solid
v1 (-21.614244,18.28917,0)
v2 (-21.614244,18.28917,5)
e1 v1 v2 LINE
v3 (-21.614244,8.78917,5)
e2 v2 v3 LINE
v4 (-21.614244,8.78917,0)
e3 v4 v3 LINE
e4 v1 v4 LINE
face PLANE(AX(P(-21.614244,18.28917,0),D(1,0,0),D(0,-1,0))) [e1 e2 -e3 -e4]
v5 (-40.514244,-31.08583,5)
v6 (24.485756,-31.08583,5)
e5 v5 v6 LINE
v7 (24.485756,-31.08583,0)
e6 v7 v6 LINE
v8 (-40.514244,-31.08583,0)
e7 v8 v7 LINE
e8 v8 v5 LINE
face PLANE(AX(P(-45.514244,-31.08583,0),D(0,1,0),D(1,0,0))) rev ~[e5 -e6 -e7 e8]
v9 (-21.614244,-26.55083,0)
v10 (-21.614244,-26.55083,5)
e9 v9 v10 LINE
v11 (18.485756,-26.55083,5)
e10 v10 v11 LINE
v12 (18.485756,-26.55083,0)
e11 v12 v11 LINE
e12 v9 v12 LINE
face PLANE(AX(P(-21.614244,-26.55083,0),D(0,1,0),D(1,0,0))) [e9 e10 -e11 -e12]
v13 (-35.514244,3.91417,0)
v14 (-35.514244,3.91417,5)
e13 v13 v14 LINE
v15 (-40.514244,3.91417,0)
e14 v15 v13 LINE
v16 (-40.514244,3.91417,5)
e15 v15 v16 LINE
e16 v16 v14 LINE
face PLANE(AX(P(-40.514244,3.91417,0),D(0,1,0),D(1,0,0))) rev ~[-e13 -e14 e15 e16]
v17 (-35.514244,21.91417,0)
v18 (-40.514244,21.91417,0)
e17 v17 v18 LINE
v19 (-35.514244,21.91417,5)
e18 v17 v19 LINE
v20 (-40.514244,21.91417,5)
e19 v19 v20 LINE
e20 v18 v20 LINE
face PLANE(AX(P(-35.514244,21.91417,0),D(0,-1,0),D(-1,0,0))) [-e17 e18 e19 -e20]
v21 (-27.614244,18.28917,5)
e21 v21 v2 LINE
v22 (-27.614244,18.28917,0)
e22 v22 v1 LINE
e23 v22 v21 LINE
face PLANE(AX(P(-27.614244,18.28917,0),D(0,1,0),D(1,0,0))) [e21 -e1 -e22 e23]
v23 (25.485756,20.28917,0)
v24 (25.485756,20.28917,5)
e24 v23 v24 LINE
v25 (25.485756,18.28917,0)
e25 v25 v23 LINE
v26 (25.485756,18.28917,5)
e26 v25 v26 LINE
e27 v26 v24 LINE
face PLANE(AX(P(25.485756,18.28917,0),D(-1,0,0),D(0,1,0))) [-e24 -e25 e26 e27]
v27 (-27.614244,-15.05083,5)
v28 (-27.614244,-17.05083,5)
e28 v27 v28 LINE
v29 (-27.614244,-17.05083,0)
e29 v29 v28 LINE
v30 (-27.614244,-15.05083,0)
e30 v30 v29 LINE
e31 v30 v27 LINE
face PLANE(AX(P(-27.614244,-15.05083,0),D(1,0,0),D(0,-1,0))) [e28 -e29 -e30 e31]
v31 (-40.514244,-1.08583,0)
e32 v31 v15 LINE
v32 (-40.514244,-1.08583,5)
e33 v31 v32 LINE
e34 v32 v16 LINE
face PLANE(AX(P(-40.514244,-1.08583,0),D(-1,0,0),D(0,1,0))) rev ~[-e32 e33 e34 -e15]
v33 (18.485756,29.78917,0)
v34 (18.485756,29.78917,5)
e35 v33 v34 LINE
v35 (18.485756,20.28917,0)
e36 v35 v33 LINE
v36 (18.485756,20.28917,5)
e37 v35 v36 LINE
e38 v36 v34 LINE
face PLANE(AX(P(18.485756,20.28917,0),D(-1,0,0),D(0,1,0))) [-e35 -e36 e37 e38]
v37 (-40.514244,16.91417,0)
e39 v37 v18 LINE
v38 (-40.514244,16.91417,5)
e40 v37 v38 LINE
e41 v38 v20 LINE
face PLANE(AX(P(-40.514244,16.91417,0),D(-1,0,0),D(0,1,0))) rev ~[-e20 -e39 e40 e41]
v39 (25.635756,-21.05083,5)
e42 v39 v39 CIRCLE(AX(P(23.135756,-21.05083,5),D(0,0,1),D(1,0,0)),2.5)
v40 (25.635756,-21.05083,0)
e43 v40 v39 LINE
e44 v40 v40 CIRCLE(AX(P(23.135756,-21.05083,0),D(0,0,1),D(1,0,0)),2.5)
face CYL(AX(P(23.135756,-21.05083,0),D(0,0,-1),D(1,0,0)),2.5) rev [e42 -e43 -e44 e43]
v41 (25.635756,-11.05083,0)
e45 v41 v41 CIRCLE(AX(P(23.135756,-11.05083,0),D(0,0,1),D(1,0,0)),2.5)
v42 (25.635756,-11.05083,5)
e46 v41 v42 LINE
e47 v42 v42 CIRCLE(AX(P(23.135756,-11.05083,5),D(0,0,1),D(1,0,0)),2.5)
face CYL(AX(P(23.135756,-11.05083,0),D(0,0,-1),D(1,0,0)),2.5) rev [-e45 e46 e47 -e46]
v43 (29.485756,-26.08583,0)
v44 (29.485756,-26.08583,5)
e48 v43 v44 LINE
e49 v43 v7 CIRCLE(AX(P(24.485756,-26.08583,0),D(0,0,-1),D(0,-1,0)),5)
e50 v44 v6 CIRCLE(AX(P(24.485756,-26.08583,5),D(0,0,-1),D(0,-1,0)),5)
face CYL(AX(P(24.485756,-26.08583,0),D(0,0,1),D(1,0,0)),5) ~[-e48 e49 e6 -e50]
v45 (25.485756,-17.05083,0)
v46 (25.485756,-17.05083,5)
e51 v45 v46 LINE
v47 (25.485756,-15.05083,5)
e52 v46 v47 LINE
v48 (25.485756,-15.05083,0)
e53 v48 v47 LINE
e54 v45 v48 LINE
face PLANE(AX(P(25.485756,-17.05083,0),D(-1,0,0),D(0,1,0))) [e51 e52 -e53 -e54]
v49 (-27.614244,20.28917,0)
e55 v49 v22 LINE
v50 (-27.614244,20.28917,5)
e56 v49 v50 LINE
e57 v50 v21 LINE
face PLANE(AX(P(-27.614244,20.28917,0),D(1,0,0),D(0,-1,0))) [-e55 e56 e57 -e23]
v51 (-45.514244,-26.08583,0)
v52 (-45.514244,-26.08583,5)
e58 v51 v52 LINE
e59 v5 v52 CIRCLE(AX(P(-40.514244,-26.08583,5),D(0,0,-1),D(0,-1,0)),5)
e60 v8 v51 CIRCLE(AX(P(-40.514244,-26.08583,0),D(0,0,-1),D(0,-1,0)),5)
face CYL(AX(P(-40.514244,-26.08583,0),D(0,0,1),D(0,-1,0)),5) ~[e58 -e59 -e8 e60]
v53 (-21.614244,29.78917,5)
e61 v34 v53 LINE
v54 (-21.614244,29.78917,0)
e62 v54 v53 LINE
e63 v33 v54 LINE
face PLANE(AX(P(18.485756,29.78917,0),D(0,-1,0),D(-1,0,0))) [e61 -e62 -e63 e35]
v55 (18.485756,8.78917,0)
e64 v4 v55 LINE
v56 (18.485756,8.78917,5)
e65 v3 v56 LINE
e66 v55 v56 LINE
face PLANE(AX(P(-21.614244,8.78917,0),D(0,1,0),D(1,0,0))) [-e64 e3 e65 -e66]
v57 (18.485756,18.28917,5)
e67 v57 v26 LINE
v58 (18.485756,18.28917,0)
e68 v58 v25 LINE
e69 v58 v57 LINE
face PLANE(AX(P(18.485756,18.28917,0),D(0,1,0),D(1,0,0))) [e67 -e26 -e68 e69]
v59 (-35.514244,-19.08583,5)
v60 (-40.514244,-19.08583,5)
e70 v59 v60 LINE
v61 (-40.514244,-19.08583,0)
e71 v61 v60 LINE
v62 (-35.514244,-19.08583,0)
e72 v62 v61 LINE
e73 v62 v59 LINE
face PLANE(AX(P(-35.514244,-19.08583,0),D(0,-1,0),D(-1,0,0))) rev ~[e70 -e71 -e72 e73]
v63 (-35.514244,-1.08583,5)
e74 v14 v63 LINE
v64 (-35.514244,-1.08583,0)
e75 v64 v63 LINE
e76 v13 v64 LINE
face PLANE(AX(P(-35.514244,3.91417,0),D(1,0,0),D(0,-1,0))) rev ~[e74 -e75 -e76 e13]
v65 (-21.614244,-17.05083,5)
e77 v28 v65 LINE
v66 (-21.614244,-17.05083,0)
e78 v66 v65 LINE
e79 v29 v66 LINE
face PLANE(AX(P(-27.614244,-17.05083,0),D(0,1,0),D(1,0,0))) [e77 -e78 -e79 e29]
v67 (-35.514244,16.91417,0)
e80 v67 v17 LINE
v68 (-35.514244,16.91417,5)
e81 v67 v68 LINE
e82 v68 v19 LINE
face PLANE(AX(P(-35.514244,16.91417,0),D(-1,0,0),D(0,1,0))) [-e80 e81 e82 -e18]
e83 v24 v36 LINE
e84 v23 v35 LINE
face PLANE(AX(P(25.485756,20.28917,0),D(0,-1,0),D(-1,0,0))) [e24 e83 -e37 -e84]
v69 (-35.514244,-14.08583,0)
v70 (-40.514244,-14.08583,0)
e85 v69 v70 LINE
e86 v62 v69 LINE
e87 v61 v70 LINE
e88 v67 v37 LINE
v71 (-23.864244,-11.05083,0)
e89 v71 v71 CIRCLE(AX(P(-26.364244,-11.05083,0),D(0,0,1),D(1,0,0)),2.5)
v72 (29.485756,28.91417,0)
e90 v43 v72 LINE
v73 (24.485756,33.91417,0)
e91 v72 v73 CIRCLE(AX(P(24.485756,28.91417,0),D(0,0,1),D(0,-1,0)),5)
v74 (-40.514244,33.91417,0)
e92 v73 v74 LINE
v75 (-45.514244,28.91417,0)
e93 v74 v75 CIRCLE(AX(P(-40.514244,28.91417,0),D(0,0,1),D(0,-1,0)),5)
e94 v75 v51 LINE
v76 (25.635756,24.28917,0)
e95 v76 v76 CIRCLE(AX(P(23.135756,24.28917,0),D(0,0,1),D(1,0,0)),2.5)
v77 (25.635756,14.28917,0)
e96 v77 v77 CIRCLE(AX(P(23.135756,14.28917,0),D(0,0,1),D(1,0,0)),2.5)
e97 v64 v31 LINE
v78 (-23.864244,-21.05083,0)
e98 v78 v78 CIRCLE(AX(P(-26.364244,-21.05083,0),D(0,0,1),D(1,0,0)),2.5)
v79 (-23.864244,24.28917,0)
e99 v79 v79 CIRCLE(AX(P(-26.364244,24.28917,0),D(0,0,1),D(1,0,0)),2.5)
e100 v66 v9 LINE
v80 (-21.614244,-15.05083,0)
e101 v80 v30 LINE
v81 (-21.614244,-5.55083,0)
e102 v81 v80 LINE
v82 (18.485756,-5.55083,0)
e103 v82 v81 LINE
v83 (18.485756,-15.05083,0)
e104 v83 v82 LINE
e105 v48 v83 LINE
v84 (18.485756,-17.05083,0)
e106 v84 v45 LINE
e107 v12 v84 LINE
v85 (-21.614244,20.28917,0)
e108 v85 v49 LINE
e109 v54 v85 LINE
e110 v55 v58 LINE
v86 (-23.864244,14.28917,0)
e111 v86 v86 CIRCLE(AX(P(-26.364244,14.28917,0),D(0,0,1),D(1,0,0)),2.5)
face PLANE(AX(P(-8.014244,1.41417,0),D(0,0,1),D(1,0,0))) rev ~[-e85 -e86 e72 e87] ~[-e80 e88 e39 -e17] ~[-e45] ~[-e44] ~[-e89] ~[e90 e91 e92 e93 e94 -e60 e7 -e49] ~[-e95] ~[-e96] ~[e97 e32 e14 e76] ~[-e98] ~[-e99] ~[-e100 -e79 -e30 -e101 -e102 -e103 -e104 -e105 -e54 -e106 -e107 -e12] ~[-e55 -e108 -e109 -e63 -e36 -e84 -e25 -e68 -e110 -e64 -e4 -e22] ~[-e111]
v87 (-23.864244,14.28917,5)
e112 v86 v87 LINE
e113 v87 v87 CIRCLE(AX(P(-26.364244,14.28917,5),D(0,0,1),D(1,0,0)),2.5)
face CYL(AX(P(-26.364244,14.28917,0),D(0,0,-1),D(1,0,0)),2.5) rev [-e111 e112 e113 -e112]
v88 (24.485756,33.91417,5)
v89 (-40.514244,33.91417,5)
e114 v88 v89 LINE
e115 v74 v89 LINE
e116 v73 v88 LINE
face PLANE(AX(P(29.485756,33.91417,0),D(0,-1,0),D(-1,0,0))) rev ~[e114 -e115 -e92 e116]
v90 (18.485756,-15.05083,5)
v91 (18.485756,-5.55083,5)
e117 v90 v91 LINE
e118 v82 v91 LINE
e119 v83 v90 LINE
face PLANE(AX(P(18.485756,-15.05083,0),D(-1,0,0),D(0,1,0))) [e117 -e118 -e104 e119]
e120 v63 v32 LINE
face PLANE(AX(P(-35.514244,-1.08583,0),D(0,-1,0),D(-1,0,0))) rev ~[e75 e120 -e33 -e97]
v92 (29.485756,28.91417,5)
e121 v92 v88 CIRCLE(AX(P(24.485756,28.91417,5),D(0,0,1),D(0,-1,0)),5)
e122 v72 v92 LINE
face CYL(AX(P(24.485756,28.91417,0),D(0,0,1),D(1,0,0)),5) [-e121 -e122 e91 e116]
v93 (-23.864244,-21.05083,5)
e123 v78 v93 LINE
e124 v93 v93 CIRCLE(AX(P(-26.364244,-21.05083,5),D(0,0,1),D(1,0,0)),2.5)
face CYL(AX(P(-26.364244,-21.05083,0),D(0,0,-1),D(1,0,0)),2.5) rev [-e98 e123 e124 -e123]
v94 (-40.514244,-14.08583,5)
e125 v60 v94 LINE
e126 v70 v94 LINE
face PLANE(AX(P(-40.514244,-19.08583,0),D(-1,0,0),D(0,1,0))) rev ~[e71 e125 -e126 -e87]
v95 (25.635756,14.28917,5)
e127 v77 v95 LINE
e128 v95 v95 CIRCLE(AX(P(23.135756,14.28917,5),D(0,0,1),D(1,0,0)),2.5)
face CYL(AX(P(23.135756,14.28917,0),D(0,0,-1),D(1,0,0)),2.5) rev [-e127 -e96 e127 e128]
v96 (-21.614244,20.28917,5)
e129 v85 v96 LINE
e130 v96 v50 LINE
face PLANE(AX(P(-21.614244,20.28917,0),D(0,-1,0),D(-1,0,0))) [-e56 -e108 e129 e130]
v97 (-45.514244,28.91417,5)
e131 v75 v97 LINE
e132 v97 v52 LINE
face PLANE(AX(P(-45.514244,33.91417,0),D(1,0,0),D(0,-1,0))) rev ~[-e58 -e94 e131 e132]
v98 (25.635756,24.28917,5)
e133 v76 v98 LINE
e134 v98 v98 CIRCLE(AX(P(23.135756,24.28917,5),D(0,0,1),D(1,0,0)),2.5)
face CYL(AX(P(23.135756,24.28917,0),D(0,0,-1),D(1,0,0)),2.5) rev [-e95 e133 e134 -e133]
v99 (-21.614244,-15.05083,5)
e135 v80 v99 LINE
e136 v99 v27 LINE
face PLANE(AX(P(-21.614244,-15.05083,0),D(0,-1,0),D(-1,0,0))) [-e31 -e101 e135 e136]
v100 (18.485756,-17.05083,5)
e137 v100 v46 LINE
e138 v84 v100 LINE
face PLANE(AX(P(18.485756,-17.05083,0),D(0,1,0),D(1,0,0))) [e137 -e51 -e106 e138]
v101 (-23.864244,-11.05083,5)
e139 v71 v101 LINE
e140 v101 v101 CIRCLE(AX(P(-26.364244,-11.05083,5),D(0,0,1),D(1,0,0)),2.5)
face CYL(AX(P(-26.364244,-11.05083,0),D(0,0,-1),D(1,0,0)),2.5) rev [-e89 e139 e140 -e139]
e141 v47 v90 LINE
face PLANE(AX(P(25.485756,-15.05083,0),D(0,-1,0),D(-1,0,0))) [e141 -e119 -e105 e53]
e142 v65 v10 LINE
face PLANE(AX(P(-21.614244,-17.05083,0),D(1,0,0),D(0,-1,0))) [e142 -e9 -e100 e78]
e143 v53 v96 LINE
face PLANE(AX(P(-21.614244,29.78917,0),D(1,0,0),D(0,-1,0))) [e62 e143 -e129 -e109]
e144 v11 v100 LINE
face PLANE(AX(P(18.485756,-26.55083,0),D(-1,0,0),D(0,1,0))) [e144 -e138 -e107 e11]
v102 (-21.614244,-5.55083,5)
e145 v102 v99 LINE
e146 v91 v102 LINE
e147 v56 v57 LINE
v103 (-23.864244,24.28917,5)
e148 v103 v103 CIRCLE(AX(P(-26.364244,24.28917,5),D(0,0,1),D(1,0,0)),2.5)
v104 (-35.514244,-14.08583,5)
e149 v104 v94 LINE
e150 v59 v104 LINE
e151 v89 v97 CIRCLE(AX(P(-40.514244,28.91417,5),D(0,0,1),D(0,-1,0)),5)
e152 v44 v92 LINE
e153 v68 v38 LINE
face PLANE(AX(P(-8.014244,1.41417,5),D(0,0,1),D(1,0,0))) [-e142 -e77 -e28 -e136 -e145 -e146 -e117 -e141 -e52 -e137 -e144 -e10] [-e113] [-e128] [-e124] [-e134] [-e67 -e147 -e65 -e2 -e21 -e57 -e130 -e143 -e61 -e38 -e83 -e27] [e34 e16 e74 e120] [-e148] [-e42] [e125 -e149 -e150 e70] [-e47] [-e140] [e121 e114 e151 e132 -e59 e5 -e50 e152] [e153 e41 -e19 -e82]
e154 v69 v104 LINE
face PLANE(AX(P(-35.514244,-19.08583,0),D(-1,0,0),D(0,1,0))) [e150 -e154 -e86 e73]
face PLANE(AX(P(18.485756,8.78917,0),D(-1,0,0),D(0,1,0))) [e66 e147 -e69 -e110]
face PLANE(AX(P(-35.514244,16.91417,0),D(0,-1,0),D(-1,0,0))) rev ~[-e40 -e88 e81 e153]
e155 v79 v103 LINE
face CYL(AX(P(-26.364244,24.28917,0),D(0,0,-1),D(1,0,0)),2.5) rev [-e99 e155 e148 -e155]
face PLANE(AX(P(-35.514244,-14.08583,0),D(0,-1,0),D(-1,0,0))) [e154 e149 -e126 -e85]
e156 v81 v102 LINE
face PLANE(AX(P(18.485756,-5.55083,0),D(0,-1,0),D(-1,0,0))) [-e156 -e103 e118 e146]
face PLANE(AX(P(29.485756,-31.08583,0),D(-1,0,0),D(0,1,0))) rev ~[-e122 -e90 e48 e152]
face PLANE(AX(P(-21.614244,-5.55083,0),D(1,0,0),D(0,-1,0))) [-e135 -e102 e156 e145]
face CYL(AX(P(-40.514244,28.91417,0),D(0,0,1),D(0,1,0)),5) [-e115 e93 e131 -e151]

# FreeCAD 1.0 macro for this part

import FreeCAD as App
import Part
import Sketcher
from FreeCAD import Vector
Q = App.Units.Quantity


def edges_at(feature, points):
    """Names of the edges that pass closest to the given points."""
    edges = feature.Shape.Edges
    near = lambda p: min(range(len(edges)), key=lambda i: edges[i].distToShape(Part.Vertex(*p))[0])
    return sorted({f"Edge{near(p) + 1}" for p in points})


def add_polygon(sketch, points):
    """Adds a closed chain of lines whose ends are joined by coincident constraints."""
    first, n = sketch.GeometryCount, len(points)
    for a, b in zip(points, points[1:] + points[:1]):
        sketch.addGeometry(Part.LineSegment(App.Vector(*a, 0), App.Vector(*b, 0)), False)
    for i in range(n):
        sketch.addConstraint(Sketcher.Constraint("Coincident", first + i, 2, first + (i + 1) % n, 1))

doc = App.newDocument("Part")
body = doc.addObject("PartDesign::Body", "Body")

sketch1 = body.newObject("Sketcher::SketchObject", "Sketch")
sketch1.AttachmentSupport = (doc.getObject("XY_Plane"), [""])
sketch1.MapMode = "FlatFace"
add_polygon(sketch1, [(29.5, -31.1), (29.5, 33.9), (-45.5, 33.9), (-45.5, -31.1)])
sketch1.addGeometry(Part.Circle(Vector(-26.4, -21.1, 0), Vector(0, 0, 1), 2.5), False)
sketch1.addGeometry(Part.Circle(Vector(-26.4, -11.1, 0), Vector(0, 0, 1), 2.5), False)
add_polygon(sketch1, [(-21.6, -17.1), (-27.6, -17.1), (-27.6, -15.1), (-21.6, -15.1), (-21.6, -5.6), (18.5, -5.6), (18.5, -15.1), (25.5, -15.1), (25.5, -17.1), (18.5, -17.1), (18.5, -26.6), (-21.6, -26.6)])
sketch1.addGeometry(Part.Circle(Vector(23.1, -21.1, 0), Vector(0, 0, 1), 2.5), False)
sketch1.addGeometry(Part.Circle(Vector(23.1, -11.1, 0), Vector(0, 0, 1), 2.5), False)
sketch1.addGeometry(Part.Circle(Vector(-26.4, 14.3, 0), Vector(0, 0, 1), 2.5), False)
sketch1.addGeometry(Part.Circle(Vector(-26.4, 24.3, 0), Vector(0, 0, 1), 2.5), False)
sketch1.addGeometry(Part.Circle(Vector(23.1, 14.3, 0), Vector(0, 0, 1), 2.5), False)
add_polygon(sketch1, [(-21.6, 29.8), (18.5, 29.8), (18.5, 20.3), (25.5, 20.3), (25.5, 18.3), (18.5, 18.3), (18.5, 8.8), (-21.6, 8.8), (-21.6, 18.3), (-27.6, 18.3), (-27.6, 20.3), (-21.6, 20.3)])
sketch1.addGeometry(Part.Circle(Vector(23.1, 24.3, 0), Vector(0, 0, 1), 2.5), False)
sketch1.addConstraint([
    Sketcher.Constraint("Vertical", 0),
    Sketcher.Constraint("Horizontal", 1),
    Sketcher.Constraint("Vertical", 2),
    Sketcher.Constraint("Horizontal", 3),
    Sketcher.Constraint("Horizontal", 6),
    Sketcher.Constraint("Vertical", 7),
    Sketcher.Constraint("Horizontal", 8),
    Sketcher.Constraint("Vertical", 9),
    Sketcher.Constraint("Horizontal", 10),
    Sketcher.Constraint("Vertical", 11),
    Sketcher.Constraint("Horizontal", 12),
    Sketcher.Constraint("Vertical", 13),
    Sketcher.Constraint("Horizontal", 14),
    Sketcher.Constraint("Vertical", 15),
    Sketcher.Constraint("Horizontal", 16),
    Sketcher.Constraint("Vertical", 17),
    Sketcher.Constraint("Horizontal", 23),
    Sketcher.Constraint("Vertical", 24),
    Sketcher.Constraint("Horizontal", 25),
    Sketcher.Constraint("Vertical", 26),
    Sketcher.Constraint("Horizontal", 27),
    Sketcher.Constraint("Vertical", 28),
    Sketcher.Constraint("Horizontal", 29),
    Sketcher.Constraint("Vertical", 30),
    Sketcher.Constraint("Horizontal", 31),
    Sketcher.Constraint("Vertical", 32),
    Sketcher.Constraint("Horizontal", 33),
    Sketcher.Constraint("Vertical", 34),
    Sketcher.Constraint("Equal", 4, 5),
    Sketcher.Constraint("Equal", 5, 18),
    Sketcher.Constraint("Equal", 18, 19),
    Sketcher.Constraint("Equal", 19, 20),
    Sketcher.Constraint("Equal", 20, 21),
    Sketcher.Constraint("Equal", 21, 22),
    Sketcher.Constraint("Equal", 22, 35),
    Sketcher.Constraint("Horizontal", 4, 3, 18, 3),
    Sketcher.Constraint("Horizontal", 5, 3, 19, 3),
    Sketcher.Constraint("Horizontal", 20, 3, 22, 3),
    Sketcher.Constraint("Horizontal", 21, 3, 35, 3),
    Sketcher.Constraint("Horizontal", 8, 2, 11, 2),
    Sketcher.Constraint("Horizontal", 6, 2, 13, 2),
    Sketcher.Constraint("Horizontal", 27, 2, 30, 2),
    Sketcher.Constraint("Horizontal", 25, 2, 32, 2),
    Sketcher.Constraint("Vertical", 4, 3, 5, 3),
    Sketcher.Constraint("Vertical", 18, 3, 19, 3),
    Sketcher.Constraint("Vertical", 5, 3, 20, 3),
    Sketcher.Constraint("Vertical", 20, 3, 21, 3),
    Sketcher.Constraint("Vertical", 19, 3, 22, 3),
    Sketcher.Constraint("Vertical", 22, 3, 35, 3),
    Sketcher.Constraint("Vertical", 11, 2, 14, 2),
    Sketcher.Constraint("Vertical", 9, 2, 16, 2),
    Sketcher.Constraint("Vertical", 15, 2, 23, 2),
    Sketcher.Constraint("Vertical", 13, 2, 25, 2),
    Sketcher.Constraint("Vertical", 24, 2, 27, 2),
    Sketcher.Constraint("Vertical", 17, 2, 29, 2),
    Sketcher.Constraint("Vertical", 7, 2, 31, 2),
    Sketcher.Constraint("Vertical", 30, 2, 33, 2),
    Sketcher.Constraint("Equal", 11, 15),
    Sketcher.Constraint("Equal", 17, 24),
    Sketcher.Constraint("Equal", 13, 26),
    Sketcher.Constraint("Equal", 24, 28),
    Sketcher.Constraint("Diameter", 4, Q("5 mm")),
    Sketcher.Constraint("DistanceX", 1, 2, 1, 1, Q("75 mm")),
    Sketcher.Constraint("DistanceX", 6, 2, 6, 1, Q("6 mm")),
    Sketcher.Constraint("DistanceX", 12, 1, 12, 2, Q("7 mm")),
    Sketcher.Constraint("DistanceY", 0, 1, 0, 2, Q("65 mm")),
    Sketcher.Constraint("DistanceY", 7, 1, 7, 2, Q("2 mm")),
    Sketcher.Constraint("DistanceX", 10, 1, 10, 2, Q("40.1 mm")),
    Sketcher.Constraint("DistanceY", 9, 1, 9, 2, Q("9.5 mm")),
    Sketcher.Constraint("DistanceY", 4, 3, 5, 3, Q("10 mm")),
    Sketcher.Constraint("DistanceY", 20, 3, 21, 3, Q("10 mm")),
    Sketcher.Constraint("DistanceY", 4, 3, 6, 2, Q("4 mm")),
    Sketcher.Constraint("DistanceX", 10, 2, 3, 2, Q("11 mm")),
    Sketcher.Constraint("DistanceY", 24, 2, 35, 3, Q("4 mm")),
    Sketcher.Constraint("DistanceX", 4, 3, 18, 3, Q("49.5 mm")),
    Sketcher.Constraint("DistanceY", 5, 3, 20, 3, Q("25.34 mm")),
    Sketcher.Constraint("DistanceX", 35, 3, 0, 2, Q("6.35 mm")),
    Sketcher.Constraint("DistanceY", 35, 3, 0, 2, Q("9.625 mm")),
    Sketcher.Constraint("DistanceY", 4, 3, -1, 1, Q("21.05083 mm")),
    Sketcher.Constraint("DistanceX", 4, 3, -1, 1, Q("26.364244 mm")),
])
pad1 = body.newObject("PartDesign::Pad", "Pad")
pad1.Profile = sketch1
pad1.Length = 5

sketch2 = body.newObject("Sketcher::SketchObject", "Sketch001")
sketch2.AttachmentSupport = (doc.getObject("XY_Plane"), [""])
sketch2.MapMode = "FlatFace"
add_polygon(sketch2, [(-41, -1), (-41, 4), (-36, 4), (-36, -1)])
add_polygon(sketch2, [(-36, 22), (-36, 17), (-41, 17), (-41, 22)])
add_polygon(sketch2, [(-36, -14), (-36, -19), (-41, -19), (-41, -14)])
sketch2.addConstraint([
    Sketcher.Constraint("Vertical", 0),
    Sketcher.Constraint("Horizontal", 1),
    Sketcher.Constraint("Vertical", 2),
    Sketcher.Constraint("Horizontal", 3),
    Sketcher.Constraint("Vertical", 4),
    Sketcher.Constraint("Horizontal", 5),
    Sketcher.Constraint("Vertical", 6),
    Sketcher.Constraint("Horizontal", 7),
    Sketcher.Constraint("Vertical", 8),
    Sketcher.Constraint("Horizontal", 9),
    Sketcher.Constraint("Vertical", 10),
    Sketcher.Constraint("Horizontal", 11),
    Sketcher.Constraint("Vertical", 2, 2, 4, 2),
    Sketcher.Constraint("Vertical", 3, 2, 5, 2),
    Sketcher.Constraint("Vertical", 7, 2, 8, 2),
    Sketcher.Constraint("Vertical", 6, 2, 9, 2),
    Sketcher.Constraint("Equal", 11, 0),
    Sketcher.Constraint("Equal", 2, 4),
    Sketcher.Constraint("Equal", 6, 8),
    Sketcher.Constraint("DistanceX", 1, 1, 1, 2, Q("5 mm")),
    Sketcher.Constraint("DistanceY", 1, 2, 4, 2, Q("13 mm")),
    Sketcher.Constraint("DistanceY", 8, 2, 2, 2, Q("18 mm")),
    Sketcher.Constraint("DistanceY", -1, 1, 0, 2, Q("3.91417 mm")),
    Sketcher.Constraint("DistanceX", 0, 2, -1, 1, Q("40.514244 mm")),
])
pocket1 = body.newObject("PartDesign::Pocket", "Pocket")
pocket1.Profile = sketch2
pocket1.Length = 5
pocket1.Reversed = True
doc.recompute()

fillet = body.newObject("PartDesign::Fillet", "Fillet")
fillet.Base = (pocket1, edges_at(pocket1, [
    (-45.514, -31.086, 2.5),
    (-45.514, 33.914, 2.5),
    (29.486, 33.914, 2.5),
    (29.486, -31.086, 2.5),
]))
fillet.Radius = 5

doc.recompute()
